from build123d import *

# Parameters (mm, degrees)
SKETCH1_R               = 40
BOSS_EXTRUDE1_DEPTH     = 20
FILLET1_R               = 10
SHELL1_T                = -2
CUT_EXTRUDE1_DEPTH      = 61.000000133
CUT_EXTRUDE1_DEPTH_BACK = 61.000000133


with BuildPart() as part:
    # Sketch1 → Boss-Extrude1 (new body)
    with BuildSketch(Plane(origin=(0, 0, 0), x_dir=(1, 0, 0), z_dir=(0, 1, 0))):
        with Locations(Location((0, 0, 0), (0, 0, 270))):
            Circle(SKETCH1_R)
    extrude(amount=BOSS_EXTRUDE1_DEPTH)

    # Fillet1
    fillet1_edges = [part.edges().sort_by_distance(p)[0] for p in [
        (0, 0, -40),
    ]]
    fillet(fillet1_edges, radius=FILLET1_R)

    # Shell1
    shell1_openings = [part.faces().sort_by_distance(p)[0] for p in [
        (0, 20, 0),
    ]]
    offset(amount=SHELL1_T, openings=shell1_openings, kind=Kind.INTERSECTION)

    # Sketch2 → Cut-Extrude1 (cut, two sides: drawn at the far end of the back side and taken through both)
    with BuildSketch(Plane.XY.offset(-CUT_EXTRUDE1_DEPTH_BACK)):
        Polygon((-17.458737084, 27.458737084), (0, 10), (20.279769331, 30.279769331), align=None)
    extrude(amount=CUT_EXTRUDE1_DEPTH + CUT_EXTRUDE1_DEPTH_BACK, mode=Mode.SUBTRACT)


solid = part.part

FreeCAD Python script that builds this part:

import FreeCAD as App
import Part
import Sketcher
from FreeCAD import Vector
Q = App.Units.Quantity


def edges_at(feature, points):
    """Names of the edges that pass closest to the given points."""
    edges = feature.Shape.Edges
    near = lambda p: min(range(len(edges)), key=lambda i: edges[i].distToShape(Part.Vertex(*p))[0])
    return sorted({f"Edge{near(p) + 1}" for p in points})


def faces_at(feature, points):
    """Names of the faces that lie closest to the given points."""
    faces = feature.Shape.Faces
    near = lambda p: min(range(len(faces)), key=lambda i: faces[i].distToShape(Part.Vertex(*p))[0])
    return sorted({f"Face{near(p) + 1}" for p in points})


def add_polygon(sketch, points):
    """Adds a closed chain of lines whose ends are joined by coincident constraints."""
    first, n = sketch.GeometryCount, len(points)
    for a, b in zip(points, points[1:] + points[:1]):
        sketch.addGeometry(Part.LineSegment(App.Vector(*a, 0), App.Vector(*b, 0)), False)
    for i in range(n):
        sketch.addConstraint(Sketcher.Constraint("Coincident", first + i, 2, first + (i + 1) % n, 1))

doc = App.newDocument("Part")
body = doc.addObject("PartDesign::Body", "Body")

sketch1 = body.newObject("Sketcher::SketchObject", "Sketch")
sketch1.AttachmentSupport = (doc.getObject("XZ_Plane"), [""])
sketch1.MapMode = "FlatFace"
sketch1.addGeometry(Part.Circle(Vector(0, 0, 0), Vector(0, 0, 1), 40), False)
sketch1.addConstraint([
    Sketcher.Constraint("Coincident", 0, 3, -1, 1),
    Sketcher.Constraint("Diameter", 0, 80.0),
])
pad1 = body.newObject("PartDesign::Pad", "Pad")
pad1.Profile = sketch1
pad1.Length = 20
pad1.Reversed = True
doc.recompute()

fillet = body.newObject("PartDesign::Fillet", "Fillet")
fillet.Base = (pad1, edges_at(pad1, [(0, 0, -40)]))
fillet.Radius = 10
doc.recompute()

thickness = body.newObject("PartDesign::Thickness", "Thickness")
thickness.Base = (fillet, faces_at(fillet, [(0, 20, 0)]))
thickness.Value = 2
thickness.Reversed = True
thickness.Join = "Intersection"

sketch2 = body.newObject("Sketcher::SketchObject", "Sketch001")
sketch2.AttachmentSupport = (doc.getObject("XY_Plane"), [""])
sketch2.MapMode = "FlatFace"
add_polygon(sketch2, [(-17, 27), (0, 10), (20, 30)])
sketch2.addConstraint([
    Sketcher.Constraint("PointOnObject", 0, 2, -2),
    Sketcher.Constraint("Perpendicular", 0, 1),
    Sketcher.Constraint("Angle", 0, Q("-45 deg")),
    Sketcher.Constraint("DistanceY", -1, 1, 0, 2, 10.0),
    Sketcher.Constraint("Distance", 2, 37.843799),
    Sketcher.Constraint("DistanceX", -1, 1, 1, 2, 20.279769),
])
pocket1 = body.newObject("PartDesign::Pocket", "Pocket")
pocket1.Profile = sketch2
pocket1.Type = "ThroughAll"
pocket1.Midplane = True

doc.recompute()
